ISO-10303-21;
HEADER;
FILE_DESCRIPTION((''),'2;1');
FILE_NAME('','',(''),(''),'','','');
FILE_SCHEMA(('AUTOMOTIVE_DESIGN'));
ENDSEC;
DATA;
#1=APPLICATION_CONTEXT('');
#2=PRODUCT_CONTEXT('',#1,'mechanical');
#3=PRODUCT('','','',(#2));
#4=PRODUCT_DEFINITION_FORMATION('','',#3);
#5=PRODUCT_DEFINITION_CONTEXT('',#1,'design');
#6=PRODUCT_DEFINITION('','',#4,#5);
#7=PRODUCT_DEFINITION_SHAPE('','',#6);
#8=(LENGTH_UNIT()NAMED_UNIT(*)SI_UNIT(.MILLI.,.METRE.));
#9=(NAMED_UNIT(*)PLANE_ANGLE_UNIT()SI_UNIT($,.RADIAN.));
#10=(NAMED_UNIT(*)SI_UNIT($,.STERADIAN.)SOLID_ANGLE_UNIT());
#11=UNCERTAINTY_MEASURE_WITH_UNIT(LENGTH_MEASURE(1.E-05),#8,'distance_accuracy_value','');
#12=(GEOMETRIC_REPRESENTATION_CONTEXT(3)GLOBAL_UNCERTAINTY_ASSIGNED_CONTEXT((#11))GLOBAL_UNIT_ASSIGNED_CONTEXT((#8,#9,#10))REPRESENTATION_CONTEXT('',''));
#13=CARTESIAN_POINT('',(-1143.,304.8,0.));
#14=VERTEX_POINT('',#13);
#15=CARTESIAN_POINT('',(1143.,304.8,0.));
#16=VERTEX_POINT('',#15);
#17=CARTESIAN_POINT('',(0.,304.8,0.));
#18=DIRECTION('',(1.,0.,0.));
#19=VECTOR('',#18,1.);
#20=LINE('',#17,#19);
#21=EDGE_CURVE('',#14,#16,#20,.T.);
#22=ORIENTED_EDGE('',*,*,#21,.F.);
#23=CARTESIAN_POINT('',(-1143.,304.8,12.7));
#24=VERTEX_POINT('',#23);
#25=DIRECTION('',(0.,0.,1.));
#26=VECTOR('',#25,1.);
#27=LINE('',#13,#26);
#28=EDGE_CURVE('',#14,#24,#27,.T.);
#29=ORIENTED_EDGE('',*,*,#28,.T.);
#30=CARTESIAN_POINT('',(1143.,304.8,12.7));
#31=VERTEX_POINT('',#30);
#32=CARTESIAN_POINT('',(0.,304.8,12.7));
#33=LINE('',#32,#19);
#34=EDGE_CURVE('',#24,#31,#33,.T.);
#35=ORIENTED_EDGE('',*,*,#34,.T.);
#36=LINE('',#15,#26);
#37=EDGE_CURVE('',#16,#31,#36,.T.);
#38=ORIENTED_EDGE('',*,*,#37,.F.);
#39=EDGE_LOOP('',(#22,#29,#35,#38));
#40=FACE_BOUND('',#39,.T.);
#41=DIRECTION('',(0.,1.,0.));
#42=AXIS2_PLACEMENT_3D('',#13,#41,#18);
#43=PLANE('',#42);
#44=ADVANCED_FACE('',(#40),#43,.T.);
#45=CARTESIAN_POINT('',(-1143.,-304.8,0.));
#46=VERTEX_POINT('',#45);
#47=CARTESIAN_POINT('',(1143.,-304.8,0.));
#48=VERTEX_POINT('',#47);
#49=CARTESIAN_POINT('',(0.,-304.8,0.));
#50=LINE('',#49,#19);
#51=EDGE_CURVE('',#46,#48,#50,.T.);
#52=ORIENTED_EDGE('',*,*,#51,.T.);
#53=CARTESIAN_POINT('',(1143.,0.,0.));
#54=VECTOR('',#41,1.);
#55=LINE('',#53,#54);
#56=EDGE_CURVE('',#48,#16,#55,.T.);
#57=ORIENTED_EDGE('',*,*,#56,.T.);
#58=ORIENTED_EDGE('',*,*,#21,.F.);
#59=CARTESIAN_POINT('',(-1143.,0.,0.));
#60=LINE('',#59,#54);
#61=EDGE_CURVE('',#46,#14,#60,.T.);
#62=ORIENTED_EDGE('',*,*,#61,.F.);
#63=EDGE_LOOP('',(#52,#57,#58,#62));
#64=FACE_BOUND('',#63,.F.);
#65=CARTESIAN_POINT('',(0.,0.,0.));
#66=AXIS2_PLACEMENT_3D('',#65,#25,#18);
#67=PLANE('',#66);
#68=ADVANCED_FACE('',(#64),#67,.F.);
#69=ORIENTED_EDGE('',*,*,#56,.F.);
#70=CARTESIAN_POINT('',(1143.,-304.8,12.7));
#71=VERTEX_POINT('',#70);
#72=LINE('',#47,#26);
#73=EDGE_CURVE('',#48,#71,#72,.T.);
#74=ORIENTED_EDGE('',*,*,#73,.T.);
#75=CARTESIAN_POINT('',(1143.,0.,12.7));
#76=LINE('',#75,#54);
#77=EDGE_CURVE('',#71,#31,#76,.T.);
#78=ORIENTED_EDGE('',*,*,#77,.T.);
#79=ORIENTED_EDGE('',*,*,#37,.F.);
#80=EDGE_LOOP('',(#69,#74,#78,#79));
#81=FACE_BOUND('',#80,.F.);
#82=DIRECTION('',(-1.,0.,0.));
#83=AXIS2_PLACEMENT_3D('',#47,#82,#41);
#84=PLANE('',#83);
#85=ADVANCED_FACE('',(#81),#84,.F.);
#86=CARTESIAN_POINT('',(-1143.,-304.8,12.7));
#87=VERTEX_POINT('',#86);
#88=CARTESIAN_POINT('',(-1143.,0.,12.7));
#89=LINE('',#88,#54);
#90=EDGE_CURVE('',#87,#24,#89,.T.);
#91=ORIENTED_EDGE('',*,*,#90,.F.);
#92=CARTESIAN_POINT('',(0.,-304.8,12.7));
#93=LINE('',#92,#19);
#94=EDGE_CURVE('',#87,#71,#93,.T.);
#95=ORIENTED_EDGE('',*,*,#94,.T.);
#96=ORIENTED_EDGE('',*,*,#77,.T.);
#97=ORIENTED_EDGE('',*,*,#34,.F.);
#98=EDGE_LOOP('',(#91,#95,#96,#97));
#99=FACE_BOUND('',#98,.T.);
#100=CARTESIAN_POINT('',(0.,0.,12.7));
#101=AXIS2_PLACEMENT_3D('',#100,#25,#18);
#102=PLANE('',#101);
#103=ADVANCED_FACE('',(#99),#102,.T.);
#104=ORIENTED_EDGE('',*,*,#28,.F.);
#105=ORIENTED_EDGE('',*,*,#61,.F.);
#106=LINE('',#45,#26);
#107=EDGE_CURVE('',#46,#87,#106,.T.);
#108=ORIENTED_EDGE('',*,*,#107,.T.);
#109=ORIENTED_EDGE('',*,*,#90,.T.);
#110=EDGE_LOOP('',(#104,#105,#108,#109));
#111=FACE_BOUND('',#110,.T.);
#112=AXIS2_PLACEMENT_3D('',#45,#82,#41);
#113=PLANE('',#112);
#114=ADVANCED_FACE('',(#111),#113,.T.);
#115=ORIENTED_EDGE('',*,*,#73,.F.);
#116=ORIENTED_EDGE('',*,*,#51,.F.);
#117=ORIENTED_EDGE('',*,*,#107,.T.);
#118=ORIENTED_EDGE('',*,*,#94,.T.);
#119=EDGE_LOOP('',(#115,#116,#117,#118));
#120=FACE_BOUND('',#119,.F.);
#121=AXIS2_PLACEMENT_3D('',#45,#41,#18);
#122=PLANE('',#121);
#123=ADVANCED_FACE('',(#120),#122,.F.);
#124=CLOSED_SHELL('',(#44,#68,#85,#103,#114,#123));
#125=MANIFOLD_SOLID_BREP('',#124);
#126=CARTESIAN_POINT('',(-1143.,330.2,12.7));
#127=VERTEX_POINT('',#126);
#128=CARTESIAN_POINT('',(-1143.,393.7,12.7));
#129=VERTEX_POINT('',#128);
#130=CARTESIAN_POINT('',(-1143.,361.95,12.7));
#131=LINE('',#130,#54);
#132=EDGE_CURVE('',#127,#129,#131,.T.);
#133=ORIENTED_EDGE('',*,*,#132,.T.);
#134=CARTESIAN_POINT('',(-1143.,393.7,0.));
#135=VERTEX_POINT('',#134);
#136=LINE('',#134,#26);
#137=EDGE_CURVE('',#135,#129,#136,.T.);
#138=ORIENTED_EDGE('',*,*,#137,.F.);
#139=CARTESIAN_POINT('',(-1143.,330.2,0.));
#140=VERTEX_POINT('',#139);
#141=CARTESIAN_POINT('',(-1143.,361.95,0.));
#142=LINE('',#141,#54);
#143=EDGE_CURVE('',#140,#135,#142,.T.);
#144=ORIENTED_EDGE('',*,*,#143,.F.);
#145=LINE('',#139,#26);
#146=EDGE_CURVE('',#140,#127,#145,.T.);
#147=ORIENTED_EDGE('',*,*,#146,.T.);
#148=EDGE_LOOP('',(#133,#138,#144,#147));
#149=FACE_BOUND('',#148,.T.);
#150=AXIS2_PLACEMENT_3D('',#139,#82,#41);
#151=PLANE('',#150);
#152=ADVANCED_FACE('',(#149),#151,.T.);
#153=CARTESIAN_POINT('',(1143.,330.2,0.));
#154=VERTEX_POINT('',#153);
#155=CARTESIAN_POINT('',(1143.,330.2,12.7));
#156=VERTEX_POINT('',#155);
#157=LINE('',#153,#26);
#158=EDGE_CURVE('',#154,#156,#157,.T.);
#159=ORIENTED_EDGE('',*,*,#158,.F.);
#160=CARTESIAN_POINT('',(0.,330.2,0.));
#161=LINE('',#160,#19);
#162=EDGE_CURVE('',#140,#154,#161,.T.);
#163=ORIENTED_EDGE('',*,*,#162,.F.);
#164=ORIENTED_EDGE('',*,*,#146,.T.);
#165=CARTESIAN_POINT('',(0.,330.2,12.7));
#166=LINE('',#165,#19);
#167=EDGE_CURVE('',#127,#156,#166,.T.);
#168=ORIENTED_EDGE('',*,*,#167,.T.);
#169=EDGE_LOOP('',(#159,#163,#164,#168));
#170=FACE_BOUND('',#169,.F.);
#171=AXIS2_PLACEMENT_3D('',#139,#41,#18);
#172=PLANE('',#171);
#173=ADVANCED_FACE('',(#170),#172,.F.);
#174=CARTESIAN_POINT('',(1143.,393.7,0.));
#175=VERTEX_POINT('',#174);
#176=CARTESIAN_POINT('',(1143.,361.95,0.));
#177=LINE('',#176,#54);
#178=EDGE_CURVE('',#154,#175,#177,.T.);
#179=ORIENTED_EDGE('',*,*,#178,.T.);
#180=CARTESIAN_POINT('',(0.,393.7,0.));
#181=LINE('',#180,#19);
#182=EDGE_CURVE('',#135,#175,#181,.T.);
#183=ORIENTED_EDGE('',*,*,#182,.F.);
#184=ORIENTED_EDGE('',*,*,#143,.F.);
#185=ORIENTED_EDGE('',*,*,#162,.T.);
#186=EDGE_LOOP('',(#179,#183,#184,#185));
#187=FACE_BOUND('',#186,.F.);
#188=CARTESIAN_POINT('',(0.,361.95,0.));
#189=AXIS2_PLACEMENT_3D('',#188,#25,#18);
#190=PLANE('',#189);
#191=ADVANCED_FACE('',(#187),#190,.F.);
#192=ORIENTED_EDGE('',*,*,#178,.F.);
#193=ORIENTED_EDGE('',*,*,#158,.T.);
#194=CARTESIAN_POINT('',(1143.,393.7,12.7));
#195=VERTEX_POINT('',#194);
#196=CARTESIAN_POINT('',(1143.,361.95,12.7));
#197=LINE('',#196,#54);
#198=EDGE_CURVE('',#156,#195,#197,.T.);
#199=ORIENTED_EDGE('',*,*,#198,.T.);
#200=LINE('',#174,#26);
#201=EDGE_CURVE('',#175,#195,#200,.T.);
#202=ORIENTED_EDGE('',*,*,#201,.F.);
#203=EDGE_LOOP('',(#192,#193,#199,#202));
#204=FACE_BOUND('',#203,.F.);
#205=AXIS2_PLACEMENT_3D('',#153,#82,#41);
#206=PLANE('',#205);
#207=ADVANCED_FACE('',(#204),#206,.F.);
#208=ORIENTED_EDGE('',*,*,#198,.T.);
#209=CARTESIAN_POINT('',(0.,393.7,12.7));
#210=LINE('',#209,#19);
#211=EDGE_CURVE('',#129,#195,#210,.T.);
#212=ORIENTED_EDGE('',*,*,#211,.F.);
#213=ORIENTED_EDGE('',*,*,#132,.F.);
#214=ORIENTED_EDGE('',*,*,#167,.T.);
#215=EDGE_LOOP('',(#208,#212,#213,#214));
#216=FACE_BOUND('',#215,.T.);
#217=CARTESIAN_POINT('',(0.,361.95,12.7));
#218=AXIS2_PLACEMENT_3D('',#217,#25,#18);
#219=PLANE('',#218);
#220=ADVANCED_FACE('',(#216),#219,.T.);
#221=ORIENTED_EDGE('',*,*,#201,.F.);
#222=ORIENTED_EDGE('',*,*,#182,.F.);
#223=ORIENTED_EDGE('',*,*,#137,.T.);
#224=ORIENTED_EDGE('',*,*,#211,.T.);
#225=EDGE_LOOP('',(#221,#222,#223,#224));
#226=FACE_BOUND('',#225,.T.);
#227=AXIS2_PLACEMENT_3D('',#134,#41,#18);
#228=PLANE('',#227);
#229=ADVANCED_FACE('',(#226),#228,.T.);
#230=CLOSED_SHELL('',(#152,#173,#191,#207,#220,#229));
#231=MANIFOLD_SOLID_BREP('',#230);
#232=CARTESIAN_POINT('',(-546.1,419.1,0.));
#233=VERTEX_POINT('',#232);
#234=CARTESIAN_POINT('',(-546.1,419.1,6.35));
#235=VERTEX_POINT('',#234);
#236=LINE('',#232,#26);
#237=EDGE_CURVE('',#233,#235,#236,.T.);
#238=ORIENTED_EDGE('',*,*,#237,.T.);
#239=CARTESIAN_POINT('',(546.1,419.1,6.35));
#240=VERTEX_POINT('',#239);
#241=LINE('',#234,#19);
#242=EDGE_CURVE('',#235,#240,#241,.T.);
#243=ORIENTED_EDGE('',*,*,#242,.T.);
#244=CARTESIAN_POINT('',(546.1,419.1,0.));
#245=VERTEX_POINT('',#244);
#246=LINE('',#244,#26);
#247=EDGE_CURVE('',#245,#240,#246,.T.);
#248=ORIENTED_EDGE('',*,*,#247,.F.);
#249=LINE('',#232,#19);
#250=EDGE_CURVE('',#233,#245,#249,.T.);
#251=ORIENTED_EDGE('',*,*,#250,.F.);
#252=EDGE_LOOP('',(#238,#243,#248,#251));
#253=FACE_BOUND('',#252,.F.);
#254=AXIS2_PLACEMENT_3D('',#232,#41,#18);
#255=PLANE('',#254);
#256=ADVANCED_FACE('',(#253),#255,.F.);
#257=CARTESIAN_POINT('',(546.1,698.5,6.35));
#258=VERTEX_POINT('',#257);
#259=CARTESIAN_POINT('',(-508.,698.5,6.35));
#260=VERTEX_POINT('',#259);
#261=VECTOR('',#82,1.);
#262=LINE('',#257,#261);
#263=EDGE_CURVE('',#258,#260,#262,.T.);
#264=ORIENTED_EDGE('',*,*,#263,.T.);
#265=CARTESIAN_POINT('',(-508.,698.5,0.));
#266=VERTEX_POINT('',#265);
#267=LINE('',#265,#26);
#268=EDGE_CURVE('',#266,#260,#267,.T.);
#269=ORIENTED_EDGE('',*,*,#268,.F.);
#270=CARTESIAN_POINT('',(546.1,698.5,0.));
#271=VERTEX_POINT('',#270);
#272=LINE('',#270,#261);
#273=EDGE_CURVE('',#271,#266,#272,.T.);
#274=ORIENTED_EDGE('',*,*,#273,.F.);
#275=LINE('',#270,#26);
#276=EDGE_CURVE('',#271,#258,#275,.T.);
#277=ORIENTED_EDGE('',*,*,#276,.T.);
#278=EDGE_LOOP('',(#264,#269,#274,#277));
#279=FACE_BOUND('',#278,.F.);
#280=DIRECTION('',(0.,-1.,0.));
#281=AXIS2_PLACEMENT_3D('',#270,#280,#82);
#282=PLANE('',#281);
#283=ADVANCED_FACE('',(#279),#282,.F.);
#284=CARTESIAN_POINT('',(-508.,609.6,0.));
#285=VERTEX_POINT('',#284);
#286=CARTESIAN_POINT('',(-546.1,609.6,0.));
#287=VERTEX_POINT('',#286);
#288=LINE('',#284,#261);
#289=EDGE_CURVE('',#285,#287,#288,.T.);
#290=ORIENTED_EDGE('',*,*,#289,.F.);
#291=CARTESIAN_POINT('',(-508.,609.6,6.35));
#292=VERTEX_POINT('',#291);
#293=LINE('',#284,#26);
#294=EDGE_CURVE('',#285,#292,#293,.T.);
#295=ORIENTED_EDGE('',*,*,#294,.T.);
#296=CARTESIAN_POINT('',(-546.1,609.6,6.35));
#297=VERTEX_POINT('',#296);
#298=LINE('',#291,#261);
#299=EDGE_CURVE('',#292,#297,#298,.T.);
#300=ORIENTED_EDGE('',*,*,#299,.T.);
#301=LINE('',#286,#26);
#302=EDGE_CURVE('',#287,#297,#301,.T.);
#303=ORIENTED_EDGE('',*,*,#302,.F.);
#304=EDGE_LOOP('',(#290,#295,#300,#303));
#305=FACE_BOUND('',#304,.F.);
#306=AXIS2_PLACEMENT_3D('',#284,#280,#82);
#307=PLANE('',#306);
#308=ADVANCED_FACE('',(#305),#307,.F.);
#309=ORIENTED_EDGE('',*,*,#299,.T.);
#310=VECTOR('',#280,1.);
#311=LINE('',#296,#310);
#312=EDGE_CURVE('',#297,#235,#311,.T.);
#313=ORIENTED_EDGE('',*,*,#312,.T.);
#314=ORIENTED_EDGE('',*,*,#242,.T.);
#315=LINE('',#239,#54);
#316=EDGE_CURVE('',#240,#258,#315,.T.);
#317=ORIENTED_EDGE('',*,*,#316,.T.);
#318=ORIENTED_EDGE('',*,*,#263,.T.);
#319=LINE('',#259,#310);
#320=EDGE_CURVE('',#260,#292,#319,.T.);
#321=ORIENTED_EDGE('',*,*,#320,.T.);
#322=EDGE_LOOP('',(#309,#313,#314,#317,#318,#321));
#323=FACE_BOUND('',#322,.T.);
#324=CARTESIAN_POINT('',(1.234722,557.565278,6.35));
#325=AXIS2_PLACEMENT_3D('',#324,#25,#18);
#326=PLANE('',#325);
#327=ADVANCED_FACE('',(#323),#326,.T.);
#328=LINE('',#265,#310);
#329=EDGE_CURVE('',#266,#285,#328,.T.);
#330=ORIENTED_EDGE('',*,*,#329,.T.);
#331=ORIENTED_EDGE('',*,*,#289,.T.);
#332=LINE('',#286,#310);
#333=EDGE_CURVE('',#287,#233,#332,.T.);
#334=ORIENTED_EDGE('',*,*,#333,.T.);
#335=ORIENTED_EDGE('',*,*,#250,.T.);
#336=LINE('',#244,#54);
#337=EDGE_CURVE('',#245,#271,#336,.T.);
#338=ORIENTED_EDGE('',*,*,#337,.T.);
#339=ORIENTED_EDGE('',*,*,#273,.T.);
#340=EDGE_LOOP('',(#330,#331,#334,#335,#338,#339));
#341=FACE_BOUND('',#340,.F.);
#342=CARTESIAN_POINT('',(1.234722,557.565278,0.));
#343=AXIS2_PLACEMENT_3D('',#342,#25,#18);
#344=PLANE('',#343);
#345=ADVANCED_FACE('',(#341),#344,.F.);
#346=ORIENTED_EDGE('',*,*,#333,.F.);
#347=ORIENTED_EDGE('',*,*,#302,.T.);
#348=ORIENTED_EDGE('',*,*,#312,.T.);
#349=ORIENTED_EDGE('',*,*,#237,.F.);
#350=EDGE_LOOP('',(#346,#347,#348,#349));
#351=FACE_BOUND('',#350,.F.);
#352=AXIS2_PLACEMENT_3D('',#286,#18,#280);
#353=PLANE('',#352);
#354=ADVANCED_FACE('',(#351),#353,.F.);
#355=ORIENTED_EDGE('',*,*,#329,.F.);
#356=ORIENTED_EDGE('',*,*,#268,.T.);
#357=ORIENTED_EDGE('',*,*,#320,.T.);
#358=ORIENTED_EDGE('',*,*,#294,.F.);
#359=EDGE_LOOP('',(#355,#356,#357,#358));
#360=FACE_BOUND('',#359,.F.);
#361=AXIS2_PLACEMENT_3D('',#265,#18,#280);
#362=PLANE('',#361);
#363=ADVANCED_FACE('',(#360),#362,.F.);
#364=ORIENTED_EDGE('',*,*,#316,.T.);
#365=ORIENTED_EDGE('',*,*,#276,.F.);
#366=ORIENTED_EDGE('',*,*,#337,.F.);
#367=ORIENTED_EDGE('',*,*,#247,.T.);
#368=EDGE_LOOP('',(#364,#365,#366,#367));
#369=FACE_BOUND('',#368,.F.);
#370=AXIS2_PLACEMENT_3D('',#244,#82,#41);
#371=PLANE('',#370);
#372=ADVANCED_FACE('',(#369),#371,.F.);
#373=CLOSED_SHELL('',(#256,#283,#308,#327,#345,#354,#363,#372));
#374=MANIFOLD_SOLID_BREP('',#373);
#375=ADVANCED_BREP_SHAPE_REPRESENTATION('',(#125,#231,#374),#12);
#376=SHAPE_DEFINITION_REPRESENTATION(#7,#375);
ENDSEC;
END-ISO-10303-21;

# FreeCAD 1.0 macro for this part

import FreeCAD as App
import Part
import Sketcher
from FreeCAD import Vector
Q = App.Units.Quantity


def add_polygon(sketch, points):
    """Adds a closed chain of lines whose ends are joined by coincident constraints."""
    first, n = sketch.GeometryCount, len(points)
    for a, b in zip(points, points[1:] + points[:1]):
        sketch.addGeometry(Part.LineSegment(App.Vector(*a, 0), App.Vector(*b, 0)), False)
    for i in range(n):
        sketch.addConstraint(Sketcher.Constraint("Coincident", first + i, 2, first + (i + 1) % n, 1))

doc = App.newDocument("Part")
body = doc.addObject("PartDesign::Body", "Body")

# Sketch on XY plane
sketch1 = doc.addObject("Sketcher::SketchObject", "Sketch")
body.addObject(sketch1)
sketch1.AttachmentSupport = (doc.XY_Plane, [""])
sketch1.MapMode = "FlatFace"
add_polygon(sketch1, [(-1143, 305), (-1143, -305), (1143, -305), (1143, 305)])  # lines 0-3
sketch1.addConstraint([
    Sketcher.Constraint("Vertical", 0),
    Sketcher.Constraint("Horizontal", 1),
    Sketcher.Constraint("Vertical", 2),
    Sketcher.Constraint("Horizontal", 3),
    Sketcher.Constraint("Symmetric", 0, 2, 2, 2, -1, 1),
    Sketcher.Constraint("DistanceX", 1, 1, 1, 2, Q("90 in")),
    Sketcher.Constraint("DistanceY", 0, 2, 0, 1, Q("24 in")),
])
pad1 = doc.addObject("PartDesign::Pad", "Pad")
body.addObject(pad1)
pad1.Profile = sketch1
pad1.Length = Q("0.5 in")
body2 = doc.addObject("PartDesign::Body", "Body001")

# Sketch on XY plane
sketch2 = doc.addObject("Sketcher::SketchObject", "Sketch001")
body2.addObject(sketch2)
sketch2.AttachmentSupport = (doc.getObject("XY_Plane001"), [""])
sketch2.MapMode = "FlatFace"
add_polygon(sketch2, [(-1143, 394), (-1143, 330), (1143, 330), (1143, 394)])  # lines 0-3
sketch2.addConstraint([
    Sketcher.Constraint("Vertical", 0),
    Sketcher.Constraint("Horizontal", 1),
    Sketcher.Constraint("Vertical", 2),
    Sketcher.Constraint("Horizontal", 3),
    Sketcher.Constraint("DistanceX", 1, 1, 1, 2, Q("90 in")),
    Sketcher.Constraint("DistanceY", 0, 2, 0, 1, Q("2.5 in")),
    Sketcher.Constraint("DistanceX", 0, 2, -1, 1, Q("45 in")),
    Sketcher.Constraint("DistanceY", -1, 1, 0, 2, Q("13 in")),
])
pad2 = doc.addObject("PartDesign::Pad", "Pad001")
body2.addObject(pad2)
pad2.Profile = sketch2
pad2.Length = Q("0.5 in")
body3 = doc.addObject("PartDesign::Body", "Body002")

# Sketch on XY plane
sketch3 = doc.addObject("Sketcher::SketchObject", "Sketch002")
body3.addObject(sketch3)
sketch3.AttachmentSupport = (doc.getObject("XY_Plane002"), [""])
sketch3.MapMode = "FlatFace"
add_polygon(sketch3, [(546, 419), (546, 698), (-508, 698), (-508, 610), (-546, 610), (-546, 419)])  # lines 0-5
sketch3.addConstraint([
    Sketcher.Constraint("Vertical", 0),
    Sketcher.Constraint("Horizontal", 1),
    Sketcher.Constraint("Vertical", 2),
    Sketcher.Constraint("Horizontal", 3),
    Sketcher.Constraint("Vertical", 4),
    Sketcher.Constraint("Horizontal", 5),
    Sketcher.Constraint("DistanceX", 5, 1, 5, 2, Q("43 in")),
    Sketcher.Constraint("DistanceY", 0, 1, 0, 2, Q("11 in")),
    Sketcher.Constraint("DistanceX", 1, 2, 1, 1, Q("41.5 in")),
    Sketcher.Constraint("DistanceY", 2, 2, 2, 1, Q("3.5 in")),
    Sketcher.Constraint("DistanceX", 1, 2, -1, 1, Q("20 in")),
    Sketcher.Constraint("DistanceY", -1, 1, 2, 2, Q("24 in")),
])
pad3 = doc.addObject("PartDesign::Pad", "Pad002")
body3.addObject(pad3)
pad3.Profile = sketch3
pad3.Length = Q("0.25 in")

doc.recompute()
